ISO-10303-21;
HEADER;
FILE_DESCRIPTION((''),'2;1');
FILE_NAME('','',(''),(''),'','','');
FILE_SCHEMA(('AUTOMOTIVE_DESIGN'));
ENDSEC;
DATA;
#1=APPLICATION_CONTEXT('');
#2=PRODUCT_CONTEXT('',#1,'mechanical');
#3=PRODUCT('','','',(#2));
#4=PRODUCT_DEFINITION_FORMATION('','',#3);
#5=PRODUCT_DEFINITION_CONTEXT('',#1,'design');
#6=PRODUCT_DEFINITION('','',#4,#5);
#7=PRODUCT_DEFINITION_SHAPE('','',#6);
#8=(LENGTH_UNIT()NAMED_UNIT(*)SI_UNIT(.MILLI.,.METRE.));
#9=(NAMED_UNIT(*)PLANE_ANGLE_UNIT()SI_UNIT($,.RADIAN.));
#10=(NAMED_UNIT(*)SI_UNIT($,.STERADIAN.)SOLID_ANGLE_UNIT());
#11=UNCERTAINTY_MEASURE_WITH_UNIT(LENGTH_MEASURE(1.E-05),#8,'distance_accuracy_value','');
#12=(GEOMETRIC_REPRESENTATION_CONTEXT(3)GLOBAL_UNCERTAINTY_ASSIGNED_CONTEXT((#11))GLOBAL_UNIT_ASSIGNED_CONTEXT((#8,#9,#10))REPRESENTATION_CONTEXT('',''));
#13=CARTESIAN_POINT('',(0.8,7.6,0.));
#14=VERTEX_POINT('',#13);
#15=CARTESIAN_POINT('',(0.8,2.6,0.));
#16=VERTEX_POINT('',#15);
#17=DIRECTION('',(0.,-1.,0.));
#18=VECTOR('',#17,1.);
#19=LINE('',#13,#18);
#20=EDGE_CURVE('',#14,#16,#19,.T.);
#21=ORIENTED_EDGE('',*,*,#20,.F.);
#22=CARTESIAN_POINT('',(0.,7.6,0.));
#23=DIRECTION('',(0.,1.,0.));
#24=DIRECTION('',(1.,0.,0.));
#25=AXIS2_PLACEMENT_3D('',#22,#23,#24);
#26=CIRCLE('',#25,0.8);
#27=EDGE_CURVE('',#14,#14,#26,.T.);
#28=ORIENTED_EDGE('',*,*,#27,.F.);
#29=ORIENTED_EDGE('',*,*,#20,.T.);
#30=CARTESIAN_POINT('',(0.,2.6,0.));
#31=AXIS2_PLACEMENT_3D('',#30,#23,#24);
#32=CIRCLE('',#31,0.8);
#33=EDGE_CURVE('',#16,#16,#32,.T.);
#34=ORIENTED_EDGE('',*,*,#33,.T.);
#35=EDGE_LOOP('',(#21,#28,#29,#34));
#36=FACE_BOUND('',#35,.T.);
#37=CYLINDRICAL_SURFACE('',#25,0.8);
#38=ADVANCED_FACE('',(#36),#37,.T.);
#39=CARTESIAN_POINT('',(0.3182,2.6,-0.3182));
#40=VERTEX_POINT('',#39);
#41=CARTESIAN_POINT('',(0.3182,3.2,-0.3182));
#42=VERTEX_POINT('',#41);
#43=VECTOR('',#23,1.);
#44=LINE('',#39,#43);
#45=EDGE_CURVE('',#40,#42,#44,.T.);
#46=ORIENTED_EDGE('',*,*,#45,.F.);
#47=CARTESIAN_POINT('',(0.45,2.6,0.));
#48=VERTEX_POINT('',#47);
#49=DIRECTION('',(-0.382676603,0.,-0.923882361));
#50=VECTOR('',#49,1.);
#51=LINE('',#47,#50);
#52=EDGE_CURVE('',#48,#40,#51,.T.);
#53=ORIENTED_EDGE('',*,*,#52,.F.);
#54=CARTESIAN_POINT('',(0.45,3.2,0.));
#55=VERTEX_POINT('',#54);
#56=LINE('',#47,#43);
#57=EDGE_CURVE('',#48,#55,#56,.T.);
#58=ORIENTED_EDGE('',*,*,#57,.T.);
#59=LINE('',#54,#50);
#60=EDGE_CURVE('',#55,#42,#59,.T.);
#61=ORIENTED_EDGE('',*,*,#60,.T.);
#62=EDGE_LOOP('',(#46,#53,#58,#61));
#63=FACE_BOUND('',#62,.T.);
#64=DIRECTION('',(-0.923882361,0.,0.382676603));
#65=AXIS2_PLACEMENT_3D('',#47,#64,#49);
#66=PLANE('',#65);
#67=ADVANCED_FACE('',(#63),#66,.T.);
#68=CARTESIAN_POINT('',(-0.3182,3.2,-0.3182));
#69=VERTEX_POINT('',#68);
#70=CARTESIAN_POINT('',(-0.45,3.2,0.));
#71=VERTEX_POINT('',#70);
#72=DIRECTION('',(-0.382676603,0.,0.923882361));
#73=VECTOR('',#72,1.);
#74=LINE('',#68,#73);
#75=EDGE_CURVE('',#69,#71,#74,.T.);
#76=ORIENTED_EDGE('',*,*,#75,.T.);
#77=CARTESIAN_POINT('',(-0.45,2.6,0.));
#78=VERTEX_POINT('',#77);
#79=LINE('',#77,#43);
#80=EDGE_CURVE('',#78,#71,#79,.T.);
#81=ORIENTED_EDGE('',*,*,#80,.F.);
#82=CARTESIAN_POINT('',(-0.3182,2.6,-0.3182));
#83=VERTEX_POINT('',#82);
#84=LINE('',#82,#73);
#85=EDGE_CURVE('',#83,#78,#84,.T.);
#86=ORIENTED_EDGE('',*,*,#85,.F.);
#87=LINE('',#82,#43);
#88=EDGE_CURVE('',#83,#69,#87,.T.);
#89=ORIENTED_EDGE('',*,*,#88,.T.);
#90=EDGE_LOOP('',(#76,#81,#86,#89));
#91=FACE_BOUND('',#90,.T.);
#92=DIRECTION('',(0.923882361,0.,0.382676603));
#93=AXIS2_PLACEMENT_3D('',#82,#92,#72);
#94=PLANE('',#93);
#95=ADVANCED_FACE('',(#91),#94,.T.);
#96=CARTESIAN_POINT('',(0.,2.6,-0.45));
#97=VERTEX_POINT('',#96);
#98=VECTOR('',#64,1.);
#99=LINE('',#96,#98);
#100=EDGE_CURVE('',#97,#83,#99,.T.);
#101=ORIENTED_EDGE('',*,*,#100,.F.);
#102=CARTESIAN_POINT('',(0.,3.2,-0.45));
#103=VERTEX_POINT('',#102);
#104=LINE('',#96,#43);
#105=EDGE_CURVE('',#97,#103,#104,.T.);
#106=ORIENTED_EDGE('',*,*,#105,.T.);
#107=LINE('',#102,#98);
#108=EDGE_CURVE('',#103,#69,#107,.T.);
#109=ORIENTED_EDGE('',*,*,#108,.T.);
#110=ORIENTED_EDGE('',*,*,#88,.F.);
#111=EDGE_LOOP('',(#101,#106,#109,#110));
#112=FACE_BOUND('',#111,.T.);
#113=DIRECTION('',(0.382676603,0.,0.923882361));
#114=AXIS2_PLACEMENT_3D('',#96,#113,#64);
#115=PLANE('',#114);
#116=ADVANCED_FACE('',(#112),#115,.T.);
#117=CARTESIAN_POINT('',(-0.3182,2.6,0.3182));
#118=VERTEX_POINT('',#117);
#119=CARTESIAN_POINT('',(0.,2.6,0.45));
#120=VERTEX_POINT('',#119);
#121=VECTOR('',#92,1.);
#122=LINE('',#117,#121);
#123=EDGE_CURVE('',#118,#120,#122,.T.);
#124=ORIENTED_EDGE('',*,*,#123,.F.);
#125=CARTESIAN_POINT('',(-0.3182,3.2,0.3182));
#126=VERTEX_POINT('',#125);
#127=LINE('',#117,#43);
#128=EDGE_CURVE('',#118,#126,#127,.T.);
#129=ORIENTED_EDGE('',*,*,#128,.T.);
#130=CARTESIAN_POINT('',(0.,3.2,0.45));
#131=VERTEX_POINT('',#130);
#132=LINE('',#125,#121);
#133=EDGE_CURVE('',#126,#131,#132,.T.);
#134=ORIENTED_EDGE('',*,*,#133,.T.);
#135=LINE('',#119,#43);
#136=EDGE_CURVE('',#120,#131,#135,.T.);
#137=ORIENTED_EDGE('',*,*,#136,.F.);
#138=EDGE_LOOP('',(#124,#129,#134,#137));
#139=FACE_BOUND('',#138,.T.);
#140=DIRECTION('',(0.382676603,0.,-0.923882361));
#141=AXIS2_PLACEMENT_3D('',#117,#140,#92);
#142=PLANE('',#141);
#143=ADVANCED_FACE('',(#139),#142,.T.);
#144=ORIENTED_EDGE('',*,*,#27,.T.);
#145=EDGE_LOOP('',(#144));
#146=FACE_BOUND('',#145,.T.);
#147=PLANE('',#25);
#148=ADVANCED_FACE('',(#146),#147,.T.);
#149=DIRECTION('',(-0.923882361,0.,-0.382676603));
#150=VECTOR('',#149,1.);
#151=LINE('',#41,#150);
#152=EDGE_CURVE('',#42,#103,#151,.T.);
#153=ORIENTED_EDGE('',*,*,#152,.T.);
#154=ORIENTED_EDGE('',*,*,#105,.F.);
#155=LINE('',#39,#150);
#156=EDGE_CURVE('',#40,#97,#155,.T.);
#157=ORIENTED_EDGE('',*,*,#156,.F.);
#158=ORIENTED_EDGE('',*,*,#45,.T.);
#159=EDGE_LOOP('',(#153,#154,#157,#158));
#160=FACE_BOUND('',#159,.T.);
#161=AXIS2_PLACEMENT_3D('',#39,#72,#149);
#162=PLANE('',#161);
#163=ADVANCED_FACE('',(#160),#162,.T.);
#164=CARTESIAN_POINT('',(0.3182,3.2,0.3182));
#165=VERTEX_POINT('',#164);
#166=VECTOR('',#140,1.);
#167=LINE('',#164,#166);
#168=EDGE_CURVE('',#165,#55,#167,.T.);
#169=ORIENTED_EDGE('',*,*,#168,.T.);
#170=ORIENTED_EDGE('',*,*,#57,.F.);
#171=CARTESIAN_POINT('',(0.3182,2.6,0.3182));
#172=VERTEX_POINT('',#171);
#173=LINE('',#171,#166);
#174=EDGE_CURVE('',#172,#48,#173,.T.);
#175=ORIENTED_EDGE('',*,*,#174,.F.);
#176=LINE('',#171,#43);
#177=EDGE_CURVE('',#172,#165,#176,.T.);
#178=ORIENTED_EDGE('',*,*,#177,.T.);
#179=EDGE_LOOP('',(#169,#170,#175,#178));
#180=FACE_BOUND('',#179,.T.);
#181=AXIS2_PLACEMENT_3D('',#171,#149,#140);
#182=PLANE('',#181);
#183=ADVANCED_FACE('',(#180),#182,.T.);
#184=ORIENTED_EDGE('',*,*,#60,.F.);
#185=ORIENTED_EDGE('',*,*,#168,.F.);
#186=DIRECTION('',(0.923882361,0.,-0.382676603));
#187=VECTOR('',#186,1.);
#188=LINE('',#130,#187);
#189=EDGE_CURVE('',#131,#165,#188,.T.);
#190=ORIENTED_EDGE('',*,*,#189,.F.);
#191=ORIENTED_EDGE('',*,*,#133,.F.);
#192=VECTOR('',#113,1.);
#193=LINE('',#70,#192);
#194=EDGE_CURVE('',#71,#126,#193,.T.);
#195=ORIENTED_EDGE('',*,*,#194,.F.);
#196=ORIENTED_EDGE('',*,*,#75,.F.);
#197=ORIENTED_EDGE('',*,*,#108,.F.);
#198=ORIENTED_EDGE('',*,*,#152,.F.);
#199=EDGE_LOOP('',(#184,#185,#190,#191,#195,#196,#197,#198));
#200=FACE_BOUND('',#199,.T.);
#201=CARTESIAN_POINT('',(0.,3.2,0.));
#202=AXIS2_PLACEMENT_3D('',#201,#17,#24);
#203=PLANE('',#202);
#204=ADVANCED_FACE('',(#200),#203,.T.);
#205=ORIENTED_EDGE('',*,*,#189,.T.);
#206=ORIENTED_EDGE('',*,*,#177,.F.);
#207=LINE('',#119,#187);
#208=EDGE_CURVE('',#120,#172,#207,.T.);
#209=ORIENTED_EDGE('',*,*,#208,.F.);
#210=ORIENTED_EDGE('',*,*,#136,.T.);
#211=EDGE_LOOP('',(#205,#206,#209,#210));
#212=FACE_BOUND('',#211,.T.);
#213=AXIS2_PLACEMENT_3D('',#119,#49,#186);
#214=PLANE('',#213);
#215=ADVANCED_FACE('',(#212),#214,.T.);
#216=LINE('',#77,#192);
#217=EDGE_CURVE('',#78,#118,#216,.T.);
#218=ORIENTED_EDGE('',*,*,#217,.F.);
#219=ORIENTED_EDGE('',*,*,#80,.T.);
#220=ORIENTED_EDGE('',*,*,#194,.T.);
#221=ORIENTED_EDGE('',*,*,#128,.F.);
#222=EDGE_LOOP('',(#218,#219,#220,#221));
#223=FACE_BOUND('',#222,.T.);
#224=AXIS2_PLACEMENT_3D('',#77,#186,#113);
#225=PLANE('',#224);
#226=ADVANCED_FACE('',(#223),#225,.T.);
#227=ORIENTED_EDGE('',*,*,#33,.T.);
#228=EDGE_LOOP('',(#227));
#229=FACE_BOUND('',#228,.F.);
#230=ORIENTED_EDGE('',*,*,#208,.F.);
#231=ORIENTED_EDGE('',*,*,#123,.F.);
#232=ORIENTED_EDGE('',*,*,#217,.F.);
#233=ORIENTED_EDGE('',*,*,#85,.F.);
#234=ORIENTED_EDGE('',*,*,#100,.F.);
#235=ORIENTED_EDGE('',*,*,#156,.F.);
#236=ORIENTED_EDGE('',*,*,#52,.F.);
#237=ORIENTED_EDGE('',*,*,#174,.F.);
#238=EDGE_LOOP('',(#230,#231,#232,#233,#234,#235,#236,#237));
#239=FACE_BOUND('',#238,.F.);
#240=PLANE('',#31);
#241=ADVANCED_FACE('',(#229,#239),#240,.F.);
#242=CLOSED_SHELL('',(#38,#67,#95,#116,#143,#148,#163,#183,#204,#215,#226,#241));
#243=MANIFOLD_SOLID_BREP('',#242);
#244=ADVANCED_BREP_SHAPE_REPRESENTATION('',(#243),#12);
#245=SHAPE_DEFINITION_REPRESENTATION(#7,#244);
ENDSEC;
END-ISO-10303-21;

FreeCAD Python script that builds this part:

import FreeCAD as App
import Part
import Sketcher
Q = App.Units.Quantity


def add_polygon(sketch, points):
    """Adds a closed chain of lines whose ends are joined by coincident constraints."""
    first, n = sketch.GeometryCount, len(points)
    for a, b in zip(points, points[1:] + points[:1]):
        sketch.addGeometry(Part.LineSegment(App.Vector(*a, 0), App.Vector(*b, 0)), False)
    for i in range(n):
        sketch.addConstraint(Sketcher.Constraint("Coincident", first + i, 2, first + (i + 1) % n, 1))

doc = App.newDocument("Part")
params = doc.addObject("Spreadsheet::Sheet", "Params")
for row, (alias, value) in enumerate([
    ("sketch1_diameter", "1.6 mm"),
    ("pad1_length", "5 mm"),
    ("pocket1_length", "0.6 mm"),
], start=1):
    params.set(f"A{row}", alias)
    params.set(f"B{row}", "=" + value)
    params.setAlias(f"B{row}", alias)

body = doc.addObject("PartDesign::Body", "Body")

sketch1 = body.newObject("Sketcher::SketchObject", "Sketch")
sketch1.AttachmentSupport = (doc.getObject("XZ_Plane"), [""])
sketch1.MapMode = "FlatFace"
sketch1.AttachmentOffset = App.Placement(App.Vector(0, 0, -7.6), App.Rotation())
sketch1.addGeometry(Part.Circle(App.Vector(0, 0, 0), App.Vector(0, 0, 1), 0.8), False)
sketch1.addConstraint([
    Sketcher.Constraint("Coincident", 0, 3, -1, 1),
    Sketcher.Constraint("Diameter", 0, Q("1.6 mm")),
])
sketch1.setExpression("Constraints[1]", "Params.sketch1_diameter")
pad1 = body.newObject("PartDesign::Pad", "Pad")
pad1.Profile = sketch1
pad1.setExpression("Length", "Params.pad1_length")

sketch2 = body.newObject("Sketcher::SketchObject", "Sketch001")
sketch2.AttachmentSupport = (doc.getObject("XZ_Plane"), [""])
sketch2.MapMode = "FlatFace"
sketch2.AttachmentOffset = App.Placement(App.Vector(0, 0, -2.6), App.Rotation())
add_polygon(sketch2, [(0.32, -0.32), (0.45, 0), (0.32, 0.32), (0, 0.45), (-0.32, 0.32), (-0.45, 0), (-0.32, -0.32), (0, -0.45)])
sketch2.addConstraint([
    Sketcher.Constraint("Symmetric", 0, 2, 4, 2, -1, 1),
    Sketcher.Constraint("Symmetric", 1, 2, 5, 2, -1, 1),
    Sketcher.Constraint("Symmetric", 2, 2, 6, 2, -1, 1),
    Sketcher.Constraint("Symmetric", 3, 2, 7, 2, -1, 1),
    Sketcher.Constraint("Symmetric", 1, 2, 3, 2, -2),
    Sketcher.Constraint("PointOnObject", 0, 2, -1),
    Sketcher.Constraint("PointOnObject", 2, 2, -2),
    Sketcher.Constraint("Perpendicular", 0, 2),
    Sketcher.Constraint("Equal", 1, 2),
    Sketcher.Constraint("Angle", 0, Q("67.5004 deg")),
    Sketcher.Constraint("DistanceX", 4, 2, 0, 2, Q("0.9 mm")),
])
pocket1 = body.newObject("PartDesign::Pocket", "Pocket")
pocket1.Profile = sketch2
pocket1.setExpression("Length", "Params.pocket1_length")

doc.recompute()
